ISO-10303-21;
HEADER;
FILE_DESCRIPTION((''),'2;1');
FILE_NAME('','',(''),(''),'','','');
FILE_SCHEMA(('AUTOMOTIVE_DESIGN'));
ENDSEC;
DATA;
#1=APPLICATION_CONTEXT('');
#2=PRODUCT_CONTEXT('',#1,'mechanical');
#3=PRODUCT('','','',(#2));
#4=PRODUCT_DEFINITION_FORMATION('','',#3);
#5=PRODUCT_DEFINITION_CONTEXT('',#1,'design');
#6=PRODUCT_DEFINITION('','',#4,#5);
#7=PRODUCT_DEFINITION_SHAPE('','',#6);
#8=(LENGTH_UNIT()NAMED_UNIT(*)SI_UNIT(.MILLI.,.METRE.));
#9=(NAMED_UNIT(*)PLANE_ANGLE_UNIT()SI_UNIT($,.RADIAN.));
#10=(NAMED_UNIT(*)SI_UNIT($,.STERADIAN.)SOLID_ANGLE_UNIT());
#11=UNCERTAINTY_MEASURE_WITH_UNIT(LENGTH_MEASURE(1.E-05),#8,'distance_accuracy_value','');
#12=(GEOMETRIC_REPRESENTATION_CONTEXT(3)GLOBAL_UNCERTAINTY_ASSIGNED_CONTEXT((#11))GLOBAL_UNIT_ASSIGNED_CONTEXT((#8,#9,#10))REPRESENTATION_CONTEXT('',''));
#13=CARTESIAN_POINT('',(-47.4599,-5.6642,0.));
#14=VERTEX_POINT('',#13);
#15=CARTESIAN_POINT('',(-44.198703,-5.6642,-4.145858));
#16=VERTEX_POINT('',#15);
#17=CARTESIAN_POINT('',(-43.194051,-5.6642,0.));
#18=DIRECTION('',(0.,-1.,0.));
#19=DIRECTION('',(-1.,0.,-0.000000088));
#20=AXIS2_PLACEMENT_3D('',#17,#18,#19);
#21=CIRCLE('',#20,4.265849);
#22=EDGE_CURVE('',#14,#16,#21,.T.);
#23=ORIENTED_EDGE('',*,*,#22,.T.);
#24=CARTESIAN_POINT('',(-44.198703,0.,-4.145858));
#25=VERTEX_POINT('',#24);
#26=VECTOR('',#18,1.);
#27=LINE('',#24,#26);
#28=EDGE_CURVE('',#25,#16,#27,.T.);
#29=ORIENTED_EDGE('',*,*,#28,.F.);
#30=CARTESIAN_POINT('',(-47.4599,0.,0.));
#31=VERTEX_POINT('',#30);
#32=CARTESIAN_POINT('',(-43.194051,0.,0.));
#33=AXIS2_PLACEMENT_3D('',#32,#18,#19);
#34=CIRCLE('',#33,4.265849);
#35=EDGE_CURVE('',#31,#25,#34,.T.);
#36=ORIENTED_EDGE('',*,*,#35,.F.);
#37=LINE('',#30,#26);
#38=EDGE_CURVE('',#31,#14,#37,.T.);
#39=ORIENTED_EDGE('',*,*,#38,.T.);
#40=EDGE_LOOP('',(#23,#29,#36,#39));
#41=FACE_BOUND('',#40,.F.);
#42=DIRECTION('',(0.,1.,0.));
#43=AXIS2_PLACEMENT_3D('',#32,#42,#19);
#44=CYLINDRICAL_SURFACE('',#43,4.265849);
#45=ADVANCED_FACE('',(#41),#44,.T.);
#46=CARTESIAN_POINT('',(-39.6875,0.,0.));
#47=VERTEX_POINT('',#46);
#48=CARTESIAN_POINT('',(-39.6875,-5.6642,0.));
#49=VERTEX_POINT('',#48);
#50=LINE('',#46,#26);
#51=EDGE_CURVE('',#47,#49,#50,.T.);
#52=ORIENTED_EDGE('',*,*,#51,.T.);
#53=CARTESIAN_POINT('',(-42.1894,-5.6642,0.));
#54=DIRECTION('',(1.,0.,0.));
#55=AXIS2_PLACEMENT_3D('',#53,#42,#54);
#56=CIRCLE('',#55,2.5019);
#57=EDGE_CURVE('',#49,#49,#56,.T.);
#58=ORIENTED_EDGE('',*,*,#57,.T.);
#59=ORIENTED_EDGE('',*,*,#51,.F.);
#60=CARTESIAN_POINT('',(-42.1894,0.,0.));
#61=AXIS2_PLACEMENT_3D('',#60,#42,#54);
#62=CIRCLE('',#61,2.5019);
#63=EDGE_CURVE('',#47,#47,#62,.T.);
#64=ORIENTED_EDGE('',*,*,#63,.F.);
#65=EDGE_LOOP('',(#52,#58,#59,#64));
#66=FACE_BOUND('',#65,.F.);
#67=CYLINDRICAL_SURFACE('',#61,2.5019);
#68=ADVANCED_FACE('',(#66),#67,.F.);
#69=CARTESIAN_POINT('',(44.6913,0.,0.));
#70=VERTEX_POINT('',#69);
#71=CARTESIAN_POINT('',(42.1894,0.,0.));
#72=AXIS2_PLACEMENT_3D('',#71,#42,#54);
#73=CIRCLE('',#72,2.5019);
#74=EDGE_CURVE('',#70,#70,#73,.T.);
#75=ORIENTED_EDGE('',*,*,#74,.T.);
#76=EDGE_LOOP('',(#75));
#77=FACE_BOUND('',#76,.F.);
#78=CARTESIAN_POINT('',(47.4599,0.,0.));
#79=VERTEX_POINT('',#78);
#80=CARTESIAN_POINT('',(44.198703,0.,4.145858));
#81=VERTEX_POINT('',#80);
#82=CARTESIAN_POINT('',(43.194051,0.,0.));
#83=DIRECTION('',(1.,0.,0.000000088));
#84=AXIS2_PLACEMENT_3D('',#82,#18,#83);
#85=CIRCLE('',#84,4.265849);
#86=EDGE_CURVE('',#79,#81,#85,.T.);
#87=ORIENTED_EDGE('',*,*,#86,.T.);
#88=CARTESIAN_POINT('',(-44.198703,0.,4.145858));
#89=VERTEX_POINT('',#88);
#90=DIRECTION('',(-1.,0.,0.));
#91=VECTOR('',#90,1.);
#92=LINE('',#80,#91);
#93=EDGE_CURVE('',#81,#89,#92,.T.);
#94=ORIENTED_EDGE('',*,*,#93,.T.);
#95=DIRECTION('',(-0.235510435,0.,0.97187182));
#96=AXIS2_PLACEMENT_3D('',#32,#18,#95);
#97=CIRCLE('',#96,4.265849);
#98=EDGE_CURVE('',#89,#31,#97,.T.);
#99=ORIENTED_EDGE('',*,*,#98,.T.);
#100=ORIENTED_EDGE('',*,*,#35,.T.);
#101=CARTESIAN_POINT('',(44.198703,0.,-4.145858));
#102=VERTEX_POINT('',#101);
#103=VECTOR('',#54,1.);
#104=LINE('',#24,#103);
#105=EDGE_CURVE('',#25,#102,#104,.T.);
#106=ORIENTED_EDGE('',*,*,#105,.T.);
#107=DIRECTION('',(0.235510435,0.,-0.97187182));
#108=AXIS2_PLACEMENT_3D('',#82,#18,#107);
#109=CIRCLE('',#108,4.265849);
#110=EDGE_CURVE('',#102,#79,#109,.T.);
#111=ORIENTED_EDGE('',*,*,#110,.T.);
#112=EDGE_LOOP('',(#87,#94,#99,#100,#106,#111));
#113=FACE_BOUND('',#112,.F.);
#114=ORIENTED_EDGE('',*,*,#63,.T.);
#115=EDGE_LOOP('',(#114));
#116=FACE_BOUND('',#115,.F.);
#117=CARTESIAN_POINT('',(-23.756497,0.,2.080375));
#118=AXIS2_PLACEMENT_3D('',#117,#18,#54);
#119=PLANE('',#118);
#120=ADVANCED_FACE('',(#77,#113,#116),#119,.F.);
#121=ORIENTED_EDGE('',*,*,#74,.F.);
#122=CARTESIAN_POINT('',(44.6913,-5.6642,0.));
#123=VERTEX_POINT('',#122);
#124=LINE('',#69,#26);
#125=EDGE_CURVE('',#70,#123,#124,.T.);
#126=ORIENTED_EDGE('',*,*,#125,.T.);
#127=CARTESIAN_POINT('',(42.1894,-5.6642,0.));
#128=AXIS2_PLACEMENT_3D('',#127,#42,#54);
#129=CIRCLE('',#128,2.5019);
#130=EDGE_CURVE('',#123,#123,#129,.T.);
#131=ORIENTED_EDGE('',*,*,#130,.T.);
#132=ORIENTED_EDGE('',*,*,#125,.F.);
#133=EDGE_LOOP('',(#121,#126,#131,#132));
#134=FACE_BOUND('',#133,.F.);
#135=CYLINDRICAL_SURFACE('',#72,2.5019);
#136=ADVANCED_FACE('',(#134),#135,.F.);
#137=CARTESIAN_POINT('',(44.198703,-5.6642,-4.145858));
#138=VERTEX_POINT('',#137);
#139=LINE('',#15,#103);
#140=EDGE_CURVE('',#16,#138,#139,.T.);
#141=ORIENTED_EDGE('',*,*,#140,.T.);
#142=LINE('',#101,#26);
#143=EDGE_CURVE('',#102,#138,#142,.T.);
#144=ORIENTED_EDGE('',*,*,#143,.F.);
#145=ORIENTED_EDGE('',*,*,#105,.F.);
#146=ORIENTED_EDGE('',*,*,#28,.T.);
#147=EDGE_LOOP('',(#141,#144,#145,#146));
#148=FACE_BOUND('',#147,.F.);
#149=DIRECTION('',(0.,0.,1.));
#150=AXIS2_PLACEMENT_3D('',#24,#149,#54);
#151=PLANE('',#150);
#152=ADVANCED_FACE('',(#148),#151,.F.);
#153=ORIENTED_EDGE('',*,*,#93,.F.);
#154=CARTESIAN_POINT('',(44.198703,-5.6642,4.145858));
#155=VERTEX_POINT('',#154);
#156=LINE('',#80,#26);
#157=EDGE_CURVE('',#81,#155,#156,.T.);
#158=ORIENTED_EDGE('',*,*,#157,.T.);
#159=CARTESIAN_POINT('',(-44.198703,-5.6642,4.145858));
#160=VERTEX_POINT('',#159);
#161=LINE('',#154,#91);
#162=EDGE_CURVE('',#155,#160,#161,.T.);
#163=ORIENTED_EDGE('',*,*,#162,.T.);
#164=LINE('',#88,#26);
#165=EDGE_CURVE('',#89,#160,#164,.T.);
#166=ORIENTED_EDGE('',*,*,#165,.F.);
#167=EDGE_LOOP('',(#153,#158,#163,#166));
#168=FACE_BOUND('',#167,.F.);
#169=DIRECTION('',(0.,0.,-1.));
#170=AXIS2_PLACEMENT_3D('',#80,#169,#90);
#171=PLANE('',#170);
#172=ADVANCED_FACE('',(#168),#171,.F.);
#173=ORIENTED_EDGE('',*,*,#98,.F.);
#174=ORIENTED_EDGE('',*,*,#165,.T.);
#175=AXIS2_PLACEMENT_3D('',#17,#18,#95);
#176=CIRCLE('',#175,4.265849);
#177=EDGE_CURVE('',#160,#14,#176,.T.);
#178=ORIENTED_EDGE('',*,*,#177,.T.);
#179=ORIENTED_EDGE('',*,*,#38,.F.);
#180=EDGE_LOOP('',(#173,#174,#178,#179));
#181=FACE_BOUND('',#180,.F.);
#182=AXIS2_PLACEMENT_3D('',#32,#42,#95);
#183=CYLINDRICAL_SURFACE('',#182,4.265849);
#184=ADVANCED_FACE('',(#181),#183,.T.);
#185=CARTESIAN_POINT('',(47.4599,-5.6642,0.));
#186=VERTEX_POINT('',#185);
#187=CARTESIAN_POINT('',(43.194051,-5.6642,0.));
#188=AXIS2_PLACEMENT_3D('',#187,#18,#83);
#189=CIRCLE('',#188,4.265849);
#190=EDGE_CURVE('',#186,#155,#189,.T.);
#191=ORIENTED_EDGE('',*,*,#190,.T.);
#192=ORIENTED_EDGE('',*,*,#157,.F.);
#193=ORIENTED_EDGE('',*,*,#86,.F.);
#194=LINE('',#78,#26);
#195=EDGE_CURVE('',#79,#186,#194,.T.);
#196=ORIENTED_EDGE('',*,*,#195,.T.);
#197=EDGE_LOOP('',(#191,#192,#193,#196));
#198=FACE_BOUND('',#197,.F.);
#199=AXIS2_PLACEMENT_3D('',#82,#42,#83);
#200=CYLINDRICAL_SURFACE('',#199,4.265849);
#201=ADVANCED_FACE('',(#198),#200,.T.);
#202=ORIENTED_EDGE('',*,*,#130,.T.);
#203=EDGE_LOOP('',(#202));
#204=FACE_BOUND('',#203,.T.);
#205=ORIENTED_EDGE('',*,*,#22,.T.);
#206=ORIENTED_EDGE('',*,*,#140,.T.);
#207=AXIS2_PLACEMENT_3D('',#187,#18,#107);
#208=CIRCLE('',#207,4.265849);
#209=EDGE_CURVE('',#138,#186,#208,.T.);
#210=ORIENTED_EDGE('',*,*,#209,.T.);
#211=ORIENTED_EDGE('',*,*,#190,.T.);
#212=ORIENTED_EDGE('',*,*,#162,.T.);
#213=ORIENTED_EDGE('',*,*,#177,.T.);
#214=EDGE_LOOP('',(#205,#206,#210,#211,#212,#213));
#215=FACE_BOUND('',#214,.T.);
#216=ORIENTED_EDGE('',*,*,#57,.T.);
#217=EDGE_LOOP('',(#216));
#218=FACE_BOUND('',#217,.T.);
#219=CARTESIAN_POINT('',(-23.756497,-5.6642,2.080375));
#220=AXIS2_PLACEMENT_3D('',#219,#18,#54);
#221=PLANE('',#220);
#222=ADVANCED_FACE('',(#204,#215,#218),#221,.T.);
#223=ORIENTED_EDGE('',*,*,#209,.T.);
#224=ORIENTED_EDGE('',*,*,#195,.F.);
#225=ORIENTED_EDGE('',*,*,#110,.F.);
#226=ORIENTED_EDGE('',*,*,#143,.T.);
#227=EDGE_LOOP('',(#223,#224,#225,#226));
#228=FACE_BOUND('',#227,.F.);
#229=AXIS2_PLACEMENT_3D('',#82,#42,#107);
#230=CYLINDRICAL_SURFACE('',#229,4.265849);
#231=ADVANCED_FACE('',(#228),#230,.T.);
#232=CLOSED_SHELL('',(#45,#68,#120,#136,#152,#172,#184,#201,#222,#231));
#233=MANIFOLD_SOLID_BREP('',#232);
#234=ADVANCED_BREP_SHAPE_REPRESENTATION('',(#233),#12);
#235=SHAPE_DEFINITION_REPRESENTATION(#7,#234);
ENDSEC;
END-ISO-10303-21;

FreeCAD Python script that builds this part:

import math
import FreeCAD as App
import Part
import Sketcher
from FreeCAD import Vector
Q = App.Units.Quantity

doc = App.newDocument("Part")
body = doc.addObject("PartDesign::Body", "Body")

sketch1 = body.newObject("Sketcher::SketchObject", "Sketch")
sketch1.AttachmentSupport = (doc.getObject("XZ_Plane"), [""])
sketch1.MapMode = "FlatFace"
sketch1.addGeometry(Part.ArcOfCircle(Part.Circle(Vector(-43.2, 0, 0), Vector(0, 0, 1), 4.3), math.radians(104), math.radians(180)), False)
sketch1.addGeometry(Part.ArcOfCircle(Part.Circle(Vector(-43.2, 0, 0), Vector(0, 0, 1), 4.3), math.radians(-180), math.radians(-104)), False)
sketch1.addGeometry(Part.LineSegment(Vector(-44.2, -4.1, 0), Vector(44.2, -4.1, 0)), False)
sketch1.addGeometry(Part.ArcOfCircle(Part.Circle(Vector(43.2, 0, 0), Vector(0, 0, 1), 4.3), math.radians(-76), math.radians(0)), False)
sketch1.addGeometry(Part.ArcOfCircle(Part.Circle(Vector(43.2, 0, 0), Vector(0, 0, 1), 4.3), math.radians(0), math.radians(76)), False)
sketch1.addGeometry(Part.LineSegment(Vector(44.2, 4.1, 0), Vector(-44.2, 4.1, 0)), False)
sketch1.addGeometry(Part.Circle(Vector(42.2, 0, 0), Vector(0, 0, 1), 2.5), False)
sketch1.addGeometry(Part.Circle(Vector(-42.2, 0, 0), Vector(0, 0, 1), 2.5), False)
sketch1.addConstraint(Sketcher.Constraint("Tangent", 0, 2, 1, 1))
sketch1.addConstraint(Sketcher.Constraint("Coincident", 1, 2, 2, 1))
sketch1.addConstraint(Sketcher.Constraint("Coincident", 2, 2, 3, 1))
sketch1.addConstraint(Sketcher.Constraint("Tangent", 3, 2, 4, 1))
sketch1.addConstraint(Sketcher.Constraint("Coincident", 4, 2, 5, 1))
sketch1.addConstraint(Sketcher.Constraint("Coincident", 5, 2, 0, 1))
sketch1.addConstraint(Sketcher.Constraint("Horizontal", 2))
sketch1.addConstraint(Sketcher.Constraint("Horizontal", 5))
sketch1.addConstraint(Sketcher.Constraint("Equal", 0, 1))
sketch1.addConstraint(Sketcher.Constraint("Equal", 1, 3))
sketch1.addConstraint(Sketcher.Constraint("Equal", 3, 4))
sketch1.addConstraint(Sketcher.Constraint("Equal", 6, 7))
sketch1.addConstraint(Sketcher.Constraint("Symmetric", 0, 3, 3, 3, -1, 1))
sketch1.addConstraint(Sketcher.Constraint("Symmetric", 6, 3, 7, 3, -1, 1))
sketch1.addConstraint(Sketcher.Constraint("Symmetric", 2, 2, 4, 2, -1))
sketch1.addConstraint(Sketcher.Constraint("PointOnObject", 6, 3, -1))
sketch1.addConstraint(Sketcher.Constraint("PointOnObject", 0, 2, -1))
sketch1.addConstraint(Sketcher.Constraint("PointOnObject", 3, 2, -1))
sketch1.addConstraint(Sketcher.Constraint("Diameter", 6, Q("0.197 in")))
sketch1.addConstraint(Sketcher.Constraint("DistanceX", -1, 1, 6, 3, Q("1.661 in")))
sketch1.addConstraint(Sketcher.Constraint("Radius", 0, 4.265849))
sketch1.addConstraint(Sketcher.Constraint("DistanceX", 0, 2, -1, 1, Q("1.8685 in")))
sketch1.addConstraint(Sketcher.Constraint("DistanceX", 2, 1, 2, 2, 88.397406))
pad1 = body.newObject("PartDesign::Pad", "Pad")
pad1.Profile = sketch1
pad1.Length = Q("0.223 in")

doc.recompute()
